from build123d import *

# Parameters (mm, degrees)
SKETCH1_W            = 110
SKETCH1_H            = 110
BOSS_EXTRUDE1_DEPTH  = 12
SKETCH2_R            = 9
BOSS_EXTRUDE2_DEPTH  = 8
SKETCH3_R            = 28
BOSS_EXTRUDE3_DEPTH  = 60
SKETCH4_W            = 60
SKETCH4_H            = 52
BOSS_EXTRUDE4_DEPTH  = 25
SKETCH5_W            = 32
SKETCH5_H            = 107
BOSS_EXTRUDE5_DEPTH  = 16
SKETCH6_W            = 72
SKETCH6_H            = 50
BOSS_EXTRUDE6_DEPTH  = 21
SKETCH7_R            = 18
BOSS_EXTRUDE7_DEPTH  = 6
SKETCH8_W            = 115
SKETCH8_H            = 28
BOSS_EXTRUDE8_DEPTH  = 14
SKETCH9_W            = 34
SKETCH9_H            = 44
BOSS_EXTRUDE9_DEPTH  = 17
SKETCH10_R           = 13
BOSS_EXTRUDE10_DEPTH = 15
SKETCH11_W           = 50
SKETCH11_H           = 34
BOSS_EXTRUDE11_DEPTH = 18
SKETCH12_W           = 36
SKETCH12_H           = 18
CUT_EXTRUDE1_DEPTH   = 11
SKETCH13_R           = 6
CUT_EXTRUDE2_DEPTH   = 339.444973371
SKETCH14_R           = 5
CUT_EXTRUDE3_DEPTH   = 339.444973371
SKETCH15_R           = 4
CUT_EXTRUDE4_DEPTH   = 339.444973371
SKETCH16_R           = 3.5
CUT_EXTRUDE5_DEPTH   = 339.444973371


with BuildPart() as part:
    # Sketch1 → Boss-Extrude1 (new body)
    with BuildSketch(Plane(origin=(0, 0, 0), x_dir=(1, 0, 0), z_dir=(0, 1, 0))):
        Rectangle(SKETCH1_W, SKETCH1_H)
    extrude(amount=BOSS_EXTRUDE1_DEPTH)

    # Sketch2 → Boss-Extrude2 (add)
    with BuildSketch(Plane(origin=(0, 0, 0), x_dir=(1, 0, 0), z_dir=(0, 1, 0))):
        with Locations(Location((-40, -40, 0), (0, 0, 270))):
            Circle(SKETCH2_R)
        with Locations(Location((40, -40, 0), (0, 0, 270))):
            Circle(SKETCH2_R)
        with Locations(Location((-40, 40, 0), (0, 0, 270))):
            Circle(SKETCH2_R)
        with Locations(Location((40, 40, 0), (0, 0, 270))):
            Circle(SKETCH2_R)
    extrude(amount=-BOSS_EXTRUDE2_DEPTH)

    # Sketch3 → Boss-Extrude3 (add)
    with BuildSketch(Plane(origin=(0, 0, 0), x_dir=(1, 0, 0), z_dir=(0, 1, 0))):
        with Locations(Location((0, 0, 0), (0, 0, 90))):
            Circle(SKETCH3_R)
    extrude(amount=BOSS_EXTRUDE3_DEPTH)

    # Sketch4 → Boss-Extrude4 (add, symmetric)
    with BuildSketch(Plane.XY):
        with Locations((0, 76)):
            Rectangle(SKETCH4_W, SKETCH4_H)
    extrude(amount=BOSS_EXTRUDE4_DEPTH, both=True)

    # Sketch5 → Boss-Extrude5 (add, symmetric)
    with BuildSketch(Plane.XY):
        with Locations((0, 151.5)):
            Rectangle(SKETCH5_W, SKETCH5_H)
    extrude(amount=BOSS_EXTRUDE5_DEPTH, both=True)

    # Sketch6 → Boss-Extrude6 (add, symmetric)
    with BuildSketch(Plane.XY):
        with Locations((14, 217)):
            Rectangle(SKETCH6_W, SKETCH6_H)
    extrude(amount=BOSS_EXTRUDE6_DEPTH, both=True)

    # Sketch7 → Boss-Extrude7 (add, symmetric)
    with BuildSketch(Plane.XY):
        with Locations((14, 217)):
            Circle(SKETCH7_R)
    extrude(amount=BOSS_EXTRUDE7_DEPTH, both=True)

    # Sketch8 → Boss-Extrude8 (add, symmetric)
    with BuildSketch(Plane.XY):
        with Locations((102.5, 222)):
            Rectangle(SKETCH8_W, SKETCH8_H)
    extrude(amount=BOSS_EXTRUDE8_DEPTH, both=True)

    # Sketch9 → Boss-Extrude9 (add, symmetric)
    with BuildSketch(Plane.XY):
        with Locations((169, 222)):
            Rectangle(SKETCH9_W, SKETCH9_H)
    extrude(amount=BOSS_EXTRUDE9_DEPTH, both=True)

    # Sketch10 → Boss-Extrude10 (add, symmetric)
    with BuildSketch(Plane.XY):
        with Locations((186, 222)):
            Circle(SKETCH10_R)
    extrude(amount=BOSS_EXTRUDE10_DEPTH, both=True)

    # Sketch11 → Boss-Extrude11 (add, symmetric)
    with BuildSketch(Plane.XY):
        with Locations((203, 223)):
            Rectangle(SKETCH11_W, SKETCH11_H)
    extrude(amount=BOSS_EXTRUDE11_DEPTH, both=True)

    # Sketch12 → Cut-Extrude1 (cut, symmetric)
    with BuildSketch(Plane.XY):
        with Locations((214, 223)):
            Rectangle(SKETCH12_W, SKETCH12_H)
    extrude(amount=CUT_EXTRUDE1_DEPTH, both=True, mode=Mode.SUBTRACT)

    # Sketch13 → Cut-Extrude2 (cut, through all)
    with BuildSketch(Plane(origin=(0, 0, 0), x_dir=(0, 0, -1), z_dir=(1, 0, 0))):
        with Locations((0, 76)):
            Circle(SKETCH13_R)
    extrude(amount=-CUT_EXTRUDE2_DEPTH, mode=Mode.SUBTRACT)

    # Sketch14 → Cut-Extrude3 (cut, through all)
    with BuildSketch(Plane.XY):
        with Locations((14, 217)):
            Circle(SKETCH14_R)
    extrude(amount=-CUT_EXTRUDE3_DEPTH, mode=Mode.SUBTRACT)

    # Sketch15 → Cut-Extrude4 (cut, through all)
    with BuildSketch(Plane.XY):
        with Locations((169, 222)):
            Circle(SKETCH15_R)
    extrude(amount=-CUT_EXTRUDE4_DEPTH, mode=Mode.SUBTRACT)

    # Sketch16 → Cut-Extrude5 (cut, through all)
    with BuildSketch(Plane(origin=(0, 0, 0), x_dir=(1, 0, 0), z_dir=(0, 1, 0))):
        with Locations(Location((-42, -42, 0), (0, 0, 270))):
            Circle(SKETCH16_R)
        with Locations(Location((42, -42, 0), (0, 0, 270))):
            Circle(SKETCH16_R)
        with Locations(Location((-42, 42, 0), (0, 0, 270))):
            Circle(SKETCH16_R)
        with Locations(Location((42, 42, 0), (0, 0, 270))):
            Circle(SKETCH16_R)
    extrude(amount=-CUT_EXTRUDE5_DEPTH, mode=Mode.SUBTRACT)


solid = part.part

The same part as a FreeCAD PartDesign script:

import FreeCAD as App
import Part
import Sketcher

doc = App.newDocument("Part")
body = doc.addObject("PartDesign::Body", "Body")

# Sketch on XZ plane
sketch1 = body.newObject("Sketcher::SketchObject", "Sketch")
sketch1.AttachmentSupport = (doc.getObject("XZ_Plane"), [""])
sketch1.MapMode = "FlatFace"
sketch1.addGeometry([
    Part.LineSegment(App.Vector(-55, -55, 0), App.Vector(-55, 55, 0)),
    Part.LineSegment(App.Vector(-55, 55, 0), App.Vector(55, 55, 0)),
    Part.LineSegment(App.Vector(55, 55, 0), App.Vector(55, -55, 0)),
    Part.LineSegment(App.Vector(55, -55, 0), App.Vector(-55, -55, 0)),
], False)
sketch1.addConstraint([
    Sketcher.Constraint("Coincident", 0, 2, 1, 1),
    Sketcher.Constraint("Coincident", 1, 2, 2, 1),
    Sketcher.Constraint("Coincident", 2, 2, 3, 1),
    Sketcher.Constraint("Coincident", 3, 2, 0, 1),
    Sketcher.Constraint("Vertical", 0),
    Sketcher.Constraint("Horizontal", 1),
    Sketcher.Constraint("Vertical", 2),
    Sketcher.Constraint("Horizontal", 3),
    Sketcher.Constraint("Symmetric", 0, 2, 2, 2, -1, 1),
    Sketcher.Constraint("Equal", 3, 0),
    Sketcher.Constraint("DistanceX", 1, 1, 1, 2, 110.0),
])
pad1 = body.newObject("PartDesign::Pad", "Pad")
pad1.Profile = sketch1
pad1.Length = 12
pad1.Reversed = True

# Sketch on XZ plane
sketch2 = body.newObject("Sketcher::SketchObject", "Sketch001")
sketch2.AttachmentSupport = (doc.getObject("XZ_Plane"), [""])
sketch2.MapMode = "FlatFace"
sketch2.addGeometry([
    Part.Circle(App.Vector(-40, 40, 0), App.Vector(0, 0, 1), 9),
    Part.Circle(App.Vector(40, 40, 0), App.Vector(0, 0, 1), 9),
    Part.Circle(App.Vector(-40, -40, 0), App.Vector(0, 0, 1), 9),
    Part.Circle(App.Vector(40, -40, 0), App.Vector(0, 0, 1), 9),
], False)
sketch2.addConstraint([
    Sketcher.Constraint("Equal", 0, 1),
    Sketcher.Constraint("Equal", 1, 2),
    Sketcher.Constraint("Equal", 2, 3),
    Sketcher.Constraint("Symmetric", 1, 3, 2, 3, -1, 1),
    Sketcher.Constraint("Symmetric", 0, 3, 3, 3, -1, 1),
    Sketcher.Constraint("Symmetric", 0, 3, 1, 3, -2),
    Sketcher.Constraint("Diameter", 0, 18.0),
    Sketcher.Constraint("DistanceX", 0, 3, -1, 1, 40.0),
    Sketcher.Constraint("DistanceY", -1, 1, 0, 3, 40.0),
])
pad2 = body.newObject("PartDesign::Pad", "Pad001")
pad2.Profile = sketch2
pad2.Length = 8

# Sketch on XZ plane
sketch3 = body.newObject("Sketcher::SketchObject", "Sketch002")
sketch3.AttachmentSupport = (doc.getObject("XZ_Plane"), [""])
sketch3.MapMode = "FlatFace"
sketch3.addGeometry(Part.Circle(App.Vector(0, 0, 0), App.Vector(0, 0, 1), 28), False)
sketch3.addConstraint([
    Sketcher.Constraint("Coincident", 0, 3, -1, 1),
    Sketcher.Constraint("Diameter", 0, 56.0),
])
pad3 = body.newObject("PartDesign::Pad", "Pad002")
pad3.Profile = sketch3
pad3.Length = 60
pad3.Reversed = True

# Sketch on XY plane
sketch4 = body.newObject("Sketcher::SketchObject", "Sketch003")
sketch4.AttachmentSupport = (doc.getObject("XY_Plane"), [""])
sketch4.MapMode = "FlatFace"
sketch4.addGeometry([
    Part.LineSegment(App.Vector(-30, 102, 0), App.Vector(-30, 50, 0)),
    Part.LineSegment(App.Vector(-30, 50, 0), App.Vector(30, 50, 0)),
    Part.LineSegment(App.Vector(30, 50, 0), App.Vector(30, 102, 0)),
    Part.LineSegment(App.Vector(30, 102, 0), App.Vector(-30, 102, 0)),
], False)
sketch4.addConstraint([
    Sketcher.Constraint("Coincident", 0, 2, 1, 1),
    Sketcher.Constraint("Coincident", 1, 2, 2, 1),
    Sketcher.Constraint("Coincident", 2, 2, 3, 1),
    Sketcher.Constraint("Coincident", 3, 2, 0, 1),
    Sketcher.Constraint("Vertical", 0),
    Sketcher.Constraint("Horizontal", 1),
    Sketcher.Constraint("Vertical", 2),
    Sketcher.Constraint("Horizontal", 3),
    Sketcher.Constraint("DistanceX", 1, 1, 1, 2, 60.0),
    Sketcher.Constraint("DistanceY", 0, 2, 0, 1, 52.0),
    Sketcher.Constraint("DistanceX", 0, 2, -1, 1, 30.0),
    Sketcher.Constraint("DistanceY", -1, 1, 0, 2, 50.0),
])
pad4 = body.newObject("PartDesign::Pad", "Pad003")
pad4.Profile = sketch4
pad4.Length = 50
pad4.Midplane = True

# Sketch on XY plane
sketch5 = body.newObject("Sketcher::SketchObject", "Sketch004")
sketch5.AttachmentSupport = (doc.getObject("XY_Plane"), [""])
sketch5.MapMode = "FlatFace"
sketch5.addGeometry([
    Part.LineSegment(App.Vector(-16, 205, 0), App.Vector(-16, 98, 0)),
    Part.LineSegment(App.Vector(-16, 98, 0), App.Vector(16, 98, 0)),
    Part.LineSegment(App.Vector(16, 98, 0), App.Vector(16, 205, 0)),
    Part.LineSegment(App.Vector(16, 205, 0), App.Vector(-16, 205, 0)),
], False)
sketch5.addConstraint([
    Sketcher.Constraint("Coincident", 0, 2, 1, 1),
    Sketcher.Constraint("Coincident", 1, 2, 2, 1),
    Sketcher.Constraint("Coincident", 2, 2, 3, 1),
    Sketcher.Constraint("Coincident", 3, 2, 0, 1),
    Sketcher.Constraint("Vertical", 0),
    Sketcher.Constraint("Horizontal", 1),
    Sketcher.Constraint("Vertical", 2),
    Sketcher.Constraint("Horizontal", 3),
    Sketcher.Constraint("DistanceX", 1, 1, 1, 2, 32.0),
    Sketcher.Constraint("DistanceY", 0, 2, 0, 1, 107.0),
    Sketcher.Constraint("DistanceX", 0, 2, -1, 1, 16.0),
    Sketcher.Constraint("DistanceY", -1, 1, 0, 2, 98.0),
])
pad5 = body.newObject("PartDesign::Pad", "Pad004")
pad5.Profile = sketch5
pad5.Length = 32
pad5.Midplane = True

# Sketch on XY plane
sketch6 = body.newObject("Sketcher::SketchObject", "Sketch005")
sketch6.AttachmentSupport = (doc.getObject("XY_Plane"), [""])
sketch6.MapMode = "FlatFace"
sketch6.addGeometry([
    Part.LineSegment(App.Vector(-22, 242, 0), App.Vector(-22, 192, 0)),
    Part.LineSegment(App.Vector(-22, 192, 0), App.Vector(50, 192, 0)),
    Part.LineSegment(App.Vector(50, 192, 0), App.Vector(50, 242, 0)),
    Part.LineSegment(App.Vector(50, 242, 0), App.Vector(-22, 242, 0)),
], False)
sketch6.addConstraint([
    Sketcher.Constraint("Coincident", 0, 2, 1, 1),
    Sketcher.Constraint("Coincident", 1, 2, 2, 1),
    Sketcher.Constraint("Coincident", 2, 2, 3, 1),
    Sketcher.Constraint("Coincident", 3, 2, 0, 1),
    Sketcher.Constraint("Vertical", 0),
    Sketcher.Constraint("Horizontal", 1),
    Sketcher.Constraint("Vertical", 2),
    Sketcher.Constraint("Horizontal", 3),
    Sketcher.Constraint("DistanceX", 1, 1, 1, 2, 72.0),
    Sketcher.Constraint("DistanceY", 0, 2, 0, 1, 50.0),
    Sketcher.Constraint("DistanceX", 0, 2, -1, 1, 22.0),
    Sketcher.Constraint("DistanceY", -1, 1, 0, 2, 192.0),
])
pad6 = body.newObject("PartDesign::Pad", "Pad005")
pad6.Profile = sketch6
pad6.Length = 42
pad6.Midplane = True

# Sketch on XY plane
sketch7 = body.newObject("Sketcher::SketchObject", "Sketch006")
sketch7.AttachmentSupport = (doc.getObject("XY_Plane"), [""])
sketch7.MapMode = "FlatFace"
sketch7.addGeometry(Part.Circle(App.Vector(14, 217, 0), App.Vector(0, 0, 1), 18), False)
sketch7.addConstraint([
    Sketcher.Constraint("Diameter", 0, 36.0),
    Sketcher.Constraint("DistanceX", -1, 1, 0, 3, 14.0),
    Sketcher.Constraint("DistanceY", -1, 1, 0, 3, 217.0),
])
pad7 = body.newObject("PartDesign::Pad", "Pad006")
pad7.Profile = sketch7
pad7.Length = 12
pad7.Midplane = True

# Sketch on XY plane
sketch8 = body.newObject("Sketcher::SketchObject", "Sketch007")
sketch8.AttachmentSupport = (doc.getObject("XY_Plane"), [""])
sketch8.MapMode = "FlatFace"
sketch8.addGeometry([
    Part.LineSegment(App.Vector(45, 236, 0), App.Vector(45, 208, 0)),
    Part.LineSegment(App.Vector(45, 208, 0), App.Vector(160, 208, 0)),
    Part.LineSegment(App.Vector(160, 208, 0), App.Vector(160, 236, 0)),
    Part.LineSegment(App.Vector(160, 236, 0), App.Vector(45, 236, 0)),
], False)
sketch8.addConstraint([
    Sketcher.Constraint("Coincident", 0, 2, 1, 1),
    Sketcher.Constraint("Coincident", 1, 2, 2, 1),
    Sketcher.Constraint("Coincident", 2, 2, 3, 1),
    Sketcher.Constraint("Coincident", 3, 2, 0, 1),
    Sketcher.Constraint("Vertical", 0),
    Sketcher.Constraint("Horizontal", 1),
    Sketcher.Constraint("Vertical", 2),
    Sketcher.Constraint("Horizontal", 3),
    Sketcher.Constraint("DistanceX", 1, 1, 1, 2, 115.0),
    Sketcher.Constraint("DistanceY", 0, 2, 0, 1, 28.0),
    Sketcher.Constraint("DistanceX", -1, 1, 0, 2, 45.0),
    Sketcher.Constraint("DistanceY", -1, 1, 0, 2, 208.0),
])
pad8 = body.newObject("PartDesign::Pad", "Pad007")
pad8.Profile = sketch8
pad8.Length = 28
pad8.Midplane = True

# Sketch on XY plane
sketch9 = body.newObject("Sketcher::SketchObject", "Sketch008")
sketch9.AttachmentSupport = (doc.getObject("XY_Plane"), [""])
sketch9.MapMode = "FlatFace"
sketch9.addGeometry([
    Part.LineSegment(App.Vector(152, 244, 0), App.Vector(152, 200, 0)),
    Part.LineSegment(App.Vector(152, 200, 0), App.Vector(186, 200, 0)),
    Part.LineSegment(App.Vector(186, 200, 0), App.Vector(186, 244, 0)),
    Part.LineSegment(App.Vector(186, 244, 0), App.Vector(152, 244, 0)),
], False)
sketch9.addConstraint([
    Sketcher.Constraint("Coincident", 0, 2, 1, 1),
    Sketcher.Constraint("Coincident", 1, 2, 2, 1),
    Sketcher.Constraint("Coincident", 2, 2, 3, 1),
    Sketcher.Constraint("Coincident", 3, 2, 0, 1),
    Sketcher.Constraint("Vertical", 0),
    Sketcher.Constraint("Horizontal", 1),
    Sketcher.Constraint("Vertical", 2),
    Sketcher.Constraint("Horizontal", 3),
    Sketcher.Constraint("DistanceX", 1, 1, 1, 2, 34.0),
    Sketcher.Constraint("DistanceY", 0, 2, 0, 1, 44.0),
    Sketcher.Constraint("DistanceX", -1, 1, 0, 2, 152.0),
    Sketcher.Constraint("DistanceY", -1, 1, 0, 2, 200.0),
])
pad9 = body.newObject("PartDesign::Pad", "Pad008")
pad9.Profile = sketch9
pad9.Length = 34
pad9.Midplane = True

# Sketch on XY plane
sketch10 = body.newObject("Sketcher::SketchObject", "Sketch009")
sketch10.AttachmentSupport = (doc.getObject("XY_Plane"), [""])
sketch10.MapMode = "FlatFace"
sketch10.addGeometry(Part.Circle(App.Vector(186, 222, 0), App.Vector(0, 0, 1), 13), False)
sketch10.addConstraint([
    Sketcher.Constraint("Diameter", 0, 26.0),
    Sketcher.Constraint("DistanceX", -1, 1, 0, 3, 186.0),
    Sketcher.Constraint("DistanceY", -1, 1, 0, 3, 222.0),
])
pad10 = body.newObject("PartDesign::Pad", "Pad009")
pad10.Profile = sketch10
pad10.Length = 30
pad10.Midplane = True

# Sketch on XY plane
sketch11 = body.newObject("Sketcher::SketchObject", "Sketch010")
sketch11.AttachmentSupport = (doc.getObject("XY_Plane"), [""])
sketch11.MapMode = "FlatFace"
sketch11.addGeometry([
    Part.LineSegment(App.Vector(178, 240, 0), App.Vector(178, 206, 0)),
    Part.LineSegment(App.Vector(178, 206, 0), App.Vector(228, 206, 0)),
    Part.LineSegment(App.Vector(228, 206, 0), App.Vector(228, 240, 0)),
    Part.LineSegment(App.Vector(228, 240, 0), App.Vector(178, 240, 0)),
], False)
sketch11.addConstraint([
    Sketcher.Constraint("Coincident", 0, 2, 1, 1),
    Sketcher.Constraint("Coincident", 1, 2, 2, 1),
    Sketcher.Constraint("Coincident", 2, 2, 3, 1),
    Sketcher.Constraint("Coincident", 3, 2, 0, 1),
    Sketcher.Constraint("Vertical", 0),
    Sketcher.Constraint("Horizontal", 1),
    Sketcher.Constraint("Vertical", 2),
    Sketcher.Constraint("Horizontal", 3),
    Sketcher.Constraint("DistanceX", 1, 1, 1, 2, 50.0),
    Sketcher.Constraint("DistanceY", 0, 2, 0, 1, 34.0),
    Sketcher.Constraint("DistanceX", -1, 1, 0, 2, 178.0),
    Sketcher.Constraint("DistanceY", -1, 1, 0, 2, 206.0),
])
pad11 = body.newObject("PartDesign::Pad", "Pad010")
pad11.Profile = sketch11
pad11.Length = 36
pad11.Midplane = True

# Sketch on XY plane
sketch12 = body.newObject("Sketcher::SketchObject", "Sketch011")
sketch12.AttachmentSupport = (doc.getObject("XY_Plane"), [""])
sketch12.MapMode = "FlatFace"
sketch12.addGeometry([
    Part.LineSegment(App.Vector(196, 232, 0), App.Vector(196, 214, 0)),
    Part.LineSegment(App.Vector(196, 214, 0), App.Vector(232, 214, 0)),
    Part.LineSegment(App.Vector(232, 214, 0), App.Vector(232, 232, 0)),
    Part.LineSegment(App.Vector(232, 232, 0), App.Vector(196, 232, 0)),
], False)
sketch12.addConstraint([
    Sketcher.Constraint("Coincident", 0, 2, 1, 1),
    Sketcher.Constraint("Coincident", 1, 2, 2, 1),
    Sketcher.Constraint("Coincident", 2, 2, 3, 1),
    Sketcher.Constraint("Coincident", 3, 2, 0, 1),
    Sketcher.Constraint("Vertical", 0),
    Sketcher.Constraint("Horizontal", 1),
    Sketcher.Constraint("Vertical", 2),
    Sketcher.Constraint("Horizontal", 3),
    Sketcher.Constraint("DistanceX", 1, 1, 1, 2, 36.0),
    Sketcher.Constraint("DistanceY", 0, 2, 0, 1, 18.0),
    Sketcher.Constraint("DistanceX", -1, 1, 0, 2, 196.0),
    Sketcher.Constraint("DistanceY", -1, 1, 0, 2, 214.0),
])
pocket1 = body.newObject("PartDesign::Pocket", "Pocket")
pocket1.Profile = sketch12
pocket1.Length = 22
pocket1.Midplane = True

# Sketch on YZ plane
sketch13 = body.newObject("Sketcher::SketchObject", "Sketch012")
sketch13.AttachmentSupport = (doc.getObject("YZ_Plane"), [""])
sketch13.MapMode = "FlatFace"
sketch13.addGeometry(Part.Circle(App.Vector(76, 0, 0), App.Vector(0, 0, 1), 6), False)
sketch13.addConstraint([
    Sketcher.Constraint("PointOnObject", 0, 3, -1),
    Sketcher.Constraint("Diameter", 0, 12.0),
    Sketcher.Constraint("DistanceX", -1, 1, 0, 3, 76.0),
])
pocket2 = body.newObject("PartDesign::Pocket", "Pocket001")
pocket2.Profile = sketch13
pocket2.Type = "ThroughAll"

# Sketch on XY plane
sketch14 = body.newObject("Sketcher::SketchObject", "Sketch013")
sketch14.AttachmentSupport = (doc.getObject("XY_Plane"), [""])
sketch14.MapMode = "FlatFace"
sketch14.addGeometry(Part.Circle(App.Vector(14, 217, 0), App.Vector(0, 0, 1), 5), False)
sketch14.addConstraint([
    Sketcher.Constraint("Diameter", 0, 10.0),
    Sketcher.Constraint("DistanceX", -1, 1, 0, 3, 14.0),
    Sketcher.Constraint("DistanceY", -1, 1, 0, 3, 217.0),
])
pocket3 = body.newObject("PartDesign::Pocket", "Pocket002")
pocket3.Profile = sketch14
pocket3.Type = "ThroughAll"

# Sketch on XY plane
sketch15 = body.newObject("Sketcher::SketchObject", "Sketch014")
sketch15.AttachmentSupport = (doc.getObject("XY_Plane"), [""])
sketch15.MapMode = "FlatFace"
sketch15.addGeometry(Part.Circle(App.Vector(169, 222, 0), App.Vector(0, 0, 1), 4), False)
sketch15.addConstraint([
    Sketcher.Constraint("Diameter", 0, 8.0),
    Sketcher.Constraint("DistanceX", -1, 1, 0, 3, 169.0),
    Sketcher.Constraint("DistanceY", -1, 1, 0, 3, 222.0),
])
pocket4 = body.newObject("PartDesign::Pocket", "Pocket003")
pocket4.Profile = sketch15
pocket4.Type = "ThroughAll"

# Sketch on XZ plane
sketch16 = body.newObject("Sketcher::SketchObject", "Sketch015")
sketch16.AttachmentSupport = (doc.getObject("XZ_Plane"), [""])
sketch16.MapMode = "FlatFace"
sketch16.addGeometry([
    Part.Circle(App.Vector(-42, 42, 0), App.Vector(0, 0, 1), 3.5),
    Part.Circle(App.Vector(42, 42, 0), App.Vector(0, 0, 1), 3.5),
    Part.Circle(App.Vector(-42, -42, 0), App.Vector(0, 0, 1), 3.5),
    Part.Circle(App.Vector(42, -42, 0), App.Vector(0, 0, 1), 3.5),
], False)
sketch16.addConstraint([
    Sketcher.Constraint("Equal", 0, 1),
    Sketcher.Constraint("Equal", 1, 2),
    Sketcher.Constraint("Equal", 2, 3),
    Sketcher.Constraint("Symmetric", 1, 3, 2, 3, -1, 1),
    Sketcher.Constraint("Symmetric", 0, 3, 3, 3, -1, 1),
    Sketcher.Constraint("Symmetric", 0, 3, 1, 3, -2),
    Sketcher.Constraint("Diameter", 0, 7.0),
    Sketcher.Constraint("DistanceX", 0, 3, -1, 1, 42.0),
    Sketcher.Constraint("DistanceY", -1, 1, 0, 3, 42.0),
])
pocket5 = body.newObject("PartDesign::Pocket", "Pocket004")
pocket5.Profile = sketch16
pocket5.Type = "ThroughAll"
pocket5.Reversed = True

doc.recompute()
